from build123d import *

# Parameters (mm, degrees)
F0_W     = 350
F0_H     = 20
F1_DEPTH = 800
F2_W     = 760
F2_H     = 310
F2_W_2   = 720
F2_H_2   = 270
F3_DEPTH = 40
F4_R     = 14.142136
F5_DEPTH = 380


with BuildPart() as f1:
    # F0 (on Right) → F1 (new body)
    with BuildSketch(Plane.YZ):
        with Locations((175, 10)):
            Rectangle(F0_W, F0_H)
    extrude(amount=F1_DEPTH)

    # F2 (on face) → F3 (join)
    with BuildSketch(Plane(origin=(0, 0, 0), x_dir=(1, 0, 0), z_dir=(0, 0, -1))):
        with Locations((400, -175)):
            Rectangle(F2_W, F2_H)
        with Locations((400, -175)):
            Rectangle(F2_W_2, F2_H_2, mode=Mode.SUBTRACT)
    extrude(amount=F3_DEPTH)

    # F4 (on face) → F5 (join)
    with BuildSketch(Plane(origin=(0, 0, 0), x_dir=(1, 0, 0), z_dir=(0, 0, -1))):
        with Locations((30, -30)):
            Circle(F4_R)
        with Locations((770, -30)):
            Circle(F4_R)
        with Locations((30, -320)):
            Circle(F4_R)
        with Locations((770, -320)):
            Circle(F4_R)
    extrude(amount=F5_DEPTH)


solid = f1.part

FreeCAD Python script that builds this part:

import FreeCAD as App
import Part
import Sketcher

V = App.Vector

doc = App.newDocument("Part")
body = doc.addObject("PartDesign::Body", "Body")

# Sketch on YZ plane
sketch1 = body.newObject("Sketcher::SketchObject", "Sketch")
sketch1.AttachmentSupport = (doc.getObject("YZ_Plane"), [""])
sketch1.MapMode = "FlatFace"
sketch1.addGeometry([
    Part.LineSegment(V(0, 20, 0), V(0, 0, 0)),
    Part.LineSegment(V(0, 0, 0), V(350, 0, 0)),
    Part.LineSegment(V(350, 0, 0), V(350, 20, 0)),
    Part.LineSegment(V(350, 20, 0), V(0, 20, 0)),
], False)
sketch1.addConstraint([
    Sketcher.Constraint("Coincident", 0, 2, 1, 1),
    Sketcher.Constraint("Coincident", 1, 2, 2, 1),
    Sketcher.Constraint("Coincident", 2, 2, 3, 1),
    Sketcher.Constraint("Coincident", 3, 2, 0, 1),
    Sketcher.Constraint("Vertical", 0),
    Sketcher.Constraint("Horizontal", 1),
    Sketcher.Constraint("Vertical", 2),
    Sketcher.Constraint("Horizontal", 3),
    Sketcher.Constraint("Coincident", 0, 2, -1, 1),
    Sketcher.Constraint("DistanceX", 1, 1, 1, 2, 350.0),
    Sketcher.Constraint("DistanceY", 0, 2, 0, 1, 20.0),
])
pad1 = body.newObject("PartDesign::Pad", "Pad")
pad1.Profile = sketch1
pad1.Length = 800

# Sketch on XY plane
sketch2 = body.newObject("Sketcher::SketchObject", "Sketch001")
sketch2.AttachmentSupport = (doc.getObject("XY_Plane"), [""])
sketch2.MapMode = "FlatFace"
sketch2.addGeometry([
    Part.LineSegment(V(20, 20, 0), V(20, 330, 0)),  # 0
    Part.LineSegment(V(20, 330, 0), V(780, 330, 0)),  # 1
    Part.LineSegment(V(780, 330, 0), V(780, 20, 0)),  # 2
    Part.LineSegment(V(780, 20, 0), V(20, 20, 0)),  # 3
    Part.LineSegment(V(760, 310, 0), V(40, 310, 0)),  # 4
    Part.LineSegment(V(40, 310, 0), V(40, 40, 0)),  # 5
    Part.LineSegment(V(40, 40, 0), V(760, 40, 0)),  # 6
    Part.LineSegment(V(760, 40, 0), V(760, 310, 0)),  # 7
], False)
sketch2.addConstraint([
    Sketcher.Constraint("Coincident", 0, 2, 1, 1),
    Sketcher.Constraint("Coincident", 1, 2, 2, 1),
    Sketcher.Constraint("Coincident", 2, 2, 3, 1),
    Sketcher.Constraint("Coincident", 3, 2, 0, 1),
    Sketcher.Constraint("Coincident", 4, 2, 5, 1),
    Sketcher.Constraint("Coincident", 5, 2, 6, 1),
    Sketcher.Constraint("Coincident", 6, 2, 7, 1),
    Sketcher.Constraint("Coincident", 7, 2, 4, 1),
    Sketcher.Constraint("Vertical", 0),
    Sketcher.Constraint("Horizontal", 1),
    Sketcher.Constraint("Vertical", 2),
    Sketcher.Constraint("Horizontal", 3),
    Sketcher.Constraint("Horizontal", 4),
    Sketcher.Constraint("Vertical", 5),
    Sketcher.Constraint("Horizontal", 6),
    Sketcher.Constraint("Vertical", 7),
    Sketcher.Constraint("DistanceX", 1, 1, 1, 2, 760.0),
    Sketcher.Constraint("DistanceX", 4, 2, 4, 1, 720.0),
    Sketcher.Constraint("DistanceY", 0, 1, 0, 2, 310.0),
    Sketcher.Constraint("DistanceY", 5, 2, 5, 1, 270.0),
    Sketcher.Constraint("DistanceX", -1, 1, 0, 2, 20.0),
    Sketcher.Constraint("DistanceY", -1, 1, 0, 2, 330.0),
    Sketcher.Constraint("DistanceX", -1, 1, 4, 2, 40.0),
    Sketcher.Constraint("DistanceY", -1, 1, 4, 2, 310.0),
])
pad2 = body.newObject("PartDesign::Pad", "Pad001")
pad2.Profile = sketch2
pad2.Length = 40
pad2.Reversed = True

# Sketch on XY plane
sketch3 = body.newObject("Sketcher::SketchObject", "Sketch002")
sketch3.AttachmentSupport = (doc.getObject("XY_Plane"), [""])
sketch3.MapMode = "FlatFace"
sketch3.addGeometry([
    Part.Circle(V(30, 30, 0), V(0, 0, 1), 14.142136),
    Part.Circle(V(770, 30, 0), V(0, 0, 1), 14.142136),
    Part.Circle(V(30, 320, 0), V(0, 0, 1), 14.142136),
    Part.Circle(V(770, 320, 0), V(0, 0, 1), 14.142136),
], False)
sketch3.addConstraint([
    Sketcher.Constraint("Equal", 0, 1),
    Sketcher.Constraint("Equal", 1, 2),
    Sketcher.Constraint("Equal", 2, 3),
    Sketcher.Constraint("Horizontal", 0, 3, 1, 3),
    Sketcher.Constraint("Horizontal", 2, 3, 3, 3),
    Sketcher.Constraint("Vertical", 0, 3, 2, 3),
    Sketcher.Constraint("Vertical", 1, 3, 3, 3),
    Sketcher.Constraint("DistanceX", -1, 1, 0, 3, 30.0),
    Sketcher.Constraint("DistanceY", -1, 1, 0, 3, 30.0),
    Sketcher.Constraint("DistanceX", -1, 1, 1, 3, 770.0),
    Sketcher.Constraint("DistanceY", -1, 1, 2, 3, 320.0),
    Sketcher.Constraint("Diameter", 0, 28.284272),
])
pad3 = body.newObject("PartDesign::Pad", "Pad002")
pad3.Profile = sketch3
pad3.Length = 380
pad3.Reversed = True

doc.recompute()
